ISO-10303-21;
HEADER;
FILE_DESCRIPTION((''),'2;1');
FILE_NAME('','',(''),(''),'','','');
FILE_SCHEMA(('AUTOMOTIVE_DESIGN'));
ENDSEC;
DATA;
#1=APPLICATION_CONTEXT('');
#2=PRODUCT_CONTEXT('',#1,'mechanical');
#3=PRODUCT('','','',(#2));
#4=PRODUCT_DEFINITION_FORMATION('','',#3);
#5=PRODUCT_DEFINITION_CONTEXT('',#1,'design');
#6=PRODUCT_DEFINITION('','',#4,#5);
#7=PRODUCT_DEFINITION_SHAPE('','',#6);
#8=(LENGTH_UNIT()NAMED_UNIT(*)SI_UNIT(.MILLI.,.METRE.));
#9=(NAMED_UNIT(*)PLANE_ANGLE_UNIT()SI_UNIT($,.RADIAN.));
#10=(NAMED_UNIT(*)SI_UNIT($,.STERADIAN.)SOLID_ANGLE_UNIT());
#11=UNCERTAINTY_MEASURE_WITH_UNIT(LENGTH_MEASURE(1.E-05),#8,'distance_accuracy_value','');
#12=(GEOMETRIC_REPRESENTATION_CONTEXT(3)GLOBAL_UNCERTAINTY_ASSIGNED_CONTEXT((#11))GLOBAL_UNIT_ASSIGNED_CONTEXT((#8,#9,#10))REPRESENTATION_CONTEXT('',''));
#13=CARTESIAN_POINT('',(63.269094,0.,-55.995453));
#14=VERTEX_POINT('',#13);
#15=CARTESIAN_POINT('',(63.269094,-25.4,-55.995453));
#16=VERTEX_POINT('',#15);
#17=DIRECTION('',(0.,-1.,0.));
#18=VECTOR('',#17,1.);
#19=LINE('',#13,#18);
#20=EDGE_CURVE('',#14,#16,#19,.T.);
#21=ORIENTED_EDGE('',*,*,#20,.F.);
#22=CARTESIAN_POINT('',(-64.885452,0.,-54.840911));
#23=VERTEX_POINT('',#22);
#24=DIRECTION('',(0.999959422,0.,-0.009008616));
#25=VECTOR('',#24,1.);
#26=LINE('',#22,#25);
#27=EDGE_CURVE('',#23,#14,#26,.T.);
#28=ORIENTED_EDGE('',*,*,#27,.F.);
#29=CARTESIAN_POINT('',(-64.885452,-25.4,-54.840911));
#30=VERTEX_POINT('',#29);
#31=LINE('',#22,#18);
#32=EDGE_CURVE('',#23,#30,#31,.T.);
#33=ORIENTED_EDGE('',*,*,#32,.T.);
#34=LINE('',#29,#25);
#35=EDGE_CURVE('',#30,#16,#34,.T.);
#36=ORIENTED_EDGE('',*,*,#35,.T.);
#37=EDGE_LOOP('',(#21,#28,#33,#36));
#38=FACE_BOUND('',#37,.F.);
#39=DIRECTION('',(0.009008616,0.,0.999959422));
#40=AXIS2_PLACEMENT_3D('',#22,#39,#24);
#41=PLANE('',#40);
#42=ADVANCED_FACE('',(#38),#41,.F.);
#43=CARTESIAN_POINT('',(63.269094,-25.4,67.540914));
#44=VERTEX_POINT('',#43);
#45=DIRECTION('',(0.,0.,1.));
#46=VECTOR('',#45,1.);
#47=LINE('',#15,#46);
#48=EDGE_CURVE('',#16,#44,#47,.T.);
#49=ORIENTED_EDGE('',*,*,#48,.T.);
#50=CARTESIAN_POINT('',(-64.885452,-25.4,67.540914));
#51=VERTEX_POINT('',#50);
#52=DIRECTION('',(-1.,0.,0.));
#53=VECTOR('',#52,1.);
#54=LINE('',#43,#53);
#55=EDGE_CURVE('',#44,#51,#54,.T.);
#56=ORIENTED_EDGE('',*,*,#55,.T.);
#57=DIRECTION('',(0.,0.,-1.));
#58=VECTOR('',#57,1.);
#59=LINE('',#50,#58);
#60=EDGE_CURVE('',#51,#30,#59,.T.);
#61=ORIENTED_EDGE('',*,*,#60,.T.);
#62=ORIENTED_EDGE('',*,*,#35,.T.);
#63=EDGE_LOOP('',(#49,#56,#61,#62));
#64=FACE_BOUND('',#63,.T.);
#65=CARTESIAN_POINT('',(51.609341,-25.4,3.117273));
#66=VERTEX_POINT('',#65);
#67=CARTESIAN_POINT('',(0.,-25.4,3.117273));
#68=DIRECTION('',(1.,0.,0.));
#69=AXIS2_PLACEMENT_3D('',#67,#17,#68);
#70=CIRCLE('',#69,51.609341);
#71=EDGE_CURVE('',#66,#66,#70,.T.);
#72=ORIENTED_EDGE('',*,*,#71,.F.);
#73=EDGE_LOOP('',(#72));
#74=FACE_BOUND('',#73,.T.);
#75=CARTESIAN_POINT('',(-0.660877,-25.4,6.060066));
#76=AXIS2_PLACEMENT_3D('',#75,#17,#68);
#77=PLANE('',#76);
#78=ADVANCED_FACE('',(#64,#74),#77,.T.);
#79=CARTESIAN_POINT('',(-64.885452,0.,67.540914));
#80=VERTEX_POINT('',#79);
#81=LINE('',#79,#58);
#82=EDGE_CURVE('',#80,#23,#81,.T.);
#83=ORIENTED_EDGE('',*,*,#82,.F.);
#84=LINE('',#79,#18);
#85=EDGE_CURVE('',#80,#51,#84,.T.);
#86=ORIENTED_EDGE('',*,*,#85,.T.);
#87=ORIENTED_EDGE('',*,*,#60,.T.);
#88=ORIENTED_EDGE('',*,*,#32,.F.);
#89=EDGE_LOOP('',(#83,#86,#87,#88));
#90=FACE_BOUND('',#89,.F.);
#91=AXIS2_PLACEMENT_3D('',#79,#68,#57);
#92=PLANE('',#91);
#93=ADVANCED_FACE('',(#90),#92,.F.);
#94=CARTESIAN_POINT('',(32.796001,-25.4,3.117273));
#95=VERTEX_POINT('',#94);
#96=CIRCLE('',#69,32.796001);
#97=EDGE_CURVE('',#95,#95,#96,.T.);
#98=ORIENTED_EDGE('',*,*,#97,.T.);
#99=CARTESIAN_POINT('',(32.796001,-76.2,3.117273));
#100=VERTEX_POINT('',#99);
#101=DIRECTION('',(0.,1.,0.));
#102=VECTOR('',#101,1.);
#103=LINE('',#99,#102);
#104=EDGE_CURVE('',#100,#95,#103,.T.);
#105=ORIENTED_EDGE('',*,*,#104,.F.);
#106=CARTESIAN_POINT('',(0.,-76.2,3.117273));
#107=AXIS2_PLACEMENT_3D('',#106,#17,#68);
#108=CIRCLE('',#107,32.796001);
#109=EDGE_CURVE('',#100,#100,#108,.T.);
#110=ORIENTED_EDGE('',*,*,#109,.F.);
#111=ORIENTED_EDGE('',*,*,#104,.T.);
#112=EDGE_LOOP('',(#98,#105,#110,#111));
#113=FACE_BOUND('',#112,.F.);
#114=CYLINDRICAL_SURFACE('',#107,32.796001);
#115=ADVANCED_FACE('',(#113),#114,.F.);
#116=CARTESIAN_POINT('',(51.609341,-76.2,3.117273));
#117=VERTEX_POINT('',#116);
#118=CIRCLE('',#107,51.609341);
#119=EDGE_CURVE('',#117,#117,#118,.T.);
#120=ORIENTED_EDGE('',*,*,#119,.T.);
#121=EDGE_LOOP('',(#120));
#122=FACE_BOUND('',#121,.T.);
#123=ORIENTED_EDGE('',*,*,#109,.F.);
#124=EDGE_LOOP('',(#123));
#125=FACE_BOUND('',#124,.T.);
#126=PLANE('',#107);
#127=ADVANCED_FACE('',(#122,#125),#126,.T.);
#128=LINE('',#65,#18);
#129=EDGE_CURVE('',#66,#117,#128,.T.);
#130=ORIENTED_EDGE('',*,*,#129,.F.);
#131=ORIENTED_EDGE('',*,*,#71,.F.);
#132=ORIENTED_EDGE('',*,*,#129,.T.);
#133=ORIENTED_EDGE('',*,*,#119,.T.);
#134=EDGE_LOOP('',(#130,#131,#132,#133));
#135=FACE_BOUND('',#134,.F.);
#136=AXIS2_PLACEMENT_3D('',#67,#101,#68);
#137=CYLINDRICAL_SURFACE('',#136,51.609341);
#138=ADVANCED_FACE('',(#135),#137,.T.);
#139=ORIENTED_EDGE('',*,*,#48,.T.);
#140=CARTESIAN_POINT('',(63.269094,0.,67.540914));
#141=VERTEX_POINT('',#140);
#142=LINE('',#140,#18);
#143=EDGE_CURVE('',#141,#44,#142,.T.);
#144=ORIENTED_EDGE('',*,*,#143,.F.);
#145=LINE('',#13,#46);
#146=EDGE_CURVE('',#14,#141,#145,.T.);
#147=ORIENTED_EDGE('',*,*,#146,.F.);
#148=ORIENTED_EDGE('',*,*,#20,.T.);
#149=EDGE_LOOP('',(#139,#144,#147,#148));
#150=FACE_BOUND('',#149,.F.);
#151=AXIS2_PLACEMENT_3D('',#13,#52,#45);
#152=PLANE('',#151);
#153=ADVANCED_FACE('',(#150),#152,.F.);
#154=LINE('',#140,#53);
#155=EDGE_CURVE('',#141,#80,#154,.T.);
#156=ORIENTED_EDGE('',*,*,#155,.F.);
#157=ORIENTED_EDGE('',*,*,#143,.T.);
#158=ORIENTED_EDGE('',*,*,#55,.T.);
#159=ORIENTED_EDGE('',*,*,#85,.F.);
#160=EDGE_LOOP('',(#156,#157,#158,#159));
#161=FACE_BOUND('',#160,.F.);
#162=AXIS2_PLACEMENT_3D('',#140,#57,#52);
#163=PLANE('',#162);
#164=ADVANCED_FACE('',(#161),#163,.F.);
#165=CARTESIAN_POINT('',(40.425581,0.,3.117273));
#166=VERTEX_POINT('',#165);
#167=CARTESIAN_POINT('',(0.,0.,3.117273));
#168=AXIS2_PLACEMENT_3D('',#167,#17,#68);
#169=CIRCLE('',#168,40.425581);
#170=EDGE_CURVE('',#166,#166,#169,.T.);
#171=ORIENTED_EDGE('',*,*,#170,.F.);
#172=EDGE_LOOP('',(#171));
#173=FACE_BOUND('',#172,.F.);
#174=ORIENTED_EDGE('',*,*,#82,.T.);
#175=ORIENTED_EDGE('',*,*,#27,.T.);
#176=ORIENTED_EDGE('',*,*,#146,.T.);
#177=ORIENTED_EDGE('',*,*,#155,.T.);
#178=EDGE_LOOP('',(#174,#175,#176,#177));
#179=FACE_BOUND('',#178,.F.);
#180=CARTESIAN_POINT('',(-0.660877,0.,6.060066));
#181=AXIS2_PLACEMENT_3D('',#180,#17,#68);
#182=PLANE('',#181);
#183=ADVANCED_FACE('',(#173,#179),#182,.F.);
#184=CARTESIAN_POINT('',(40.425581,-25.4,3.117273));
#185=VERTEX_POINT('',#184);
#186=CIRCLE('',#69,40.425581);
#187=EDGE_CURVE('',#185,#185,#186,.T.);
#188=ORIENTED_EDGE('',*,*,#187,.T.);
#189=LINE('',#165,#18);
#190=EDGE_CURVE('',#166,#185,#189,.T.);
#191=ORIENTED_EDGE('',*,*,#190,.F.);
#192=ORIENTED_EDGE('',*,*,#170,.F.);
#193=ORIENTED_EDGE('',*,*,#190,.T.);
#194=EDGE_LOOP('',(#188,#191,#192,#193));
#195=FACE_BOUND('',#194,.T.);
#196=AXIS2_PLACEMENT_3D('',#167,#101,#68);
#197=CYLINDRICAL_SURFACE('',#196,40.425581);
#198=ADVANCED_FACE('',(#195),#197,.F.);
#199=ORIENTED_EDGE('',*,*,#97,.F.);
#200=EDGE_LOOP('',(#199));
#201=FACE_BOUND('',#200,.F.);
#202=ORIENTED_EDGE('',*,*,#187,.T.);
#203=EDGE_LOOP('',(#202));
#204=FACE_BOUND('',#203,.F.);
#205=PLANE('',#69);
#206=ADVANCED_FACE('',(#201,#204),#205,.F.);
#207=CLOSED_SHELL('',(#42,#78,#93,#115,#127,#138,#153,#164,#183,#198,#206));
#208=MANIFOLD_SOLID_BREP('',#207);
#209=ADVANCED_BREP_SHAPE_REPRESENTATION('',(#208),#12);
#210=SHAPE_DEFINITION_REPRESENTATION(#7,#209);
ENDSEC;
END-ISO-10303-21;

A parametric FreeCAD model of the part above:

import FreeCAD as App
import Part
import Sketcher
from FreeCAD import Vector
Q = App.Units.Quantity

doc = App.newDocument("Part")
params = doc.addObject("Spreadsheet::Sheet", "Params")
for row, (alias, value) in enumerate([
    ("pad1_length", "1 in"),
    ("pad2_length", "2 in"),
    ("pocket1_length", "3 in"),
], start=1):
    params.set(f"A{row}", alias)
    params.set(f"B{row}", "=" + value)
    params.setAlias(f"B{row}", alias)

body = doc.addObject("PartDesign::Body", "Body")

# Sketch on XZ plane
sketch1 = body.newObject("Sketcher::SketchObject", "Sketch")
sketch1.AttachmentSupport = (doc.getObject("XZ_Plane"), [""])
sketch1.MapMode = "FlatFace"
sketch1.addGeometry(Part.LineSegment(Vector(63.269094, -55.995453, 0), Vector(63.269094, 67.540914, 0)), False)
sketch1.addGeometry(Part.LineSegment(Vector(63.269094, 67.540914, 0), Vector(-64.885452, 67.540914, 0)), False)
sketch1.addGeometry(Part.LineSegment(Vector(-64.885452, 67.540914, 0), Vector(-64.885452, -54.840911, 0)), False)
sketch1.addGeometry(Part.LineSegment(Vector(-64.885452, -54.840911, 0), Vector(63.269094, -55.995453, 0)), False)
sketch1.addGeometry(Part.Circle(Vector(0, 3.117273, 0), Vector(0, 0, 1), 40.425581), False)
sketch1.addConstraint(Sketcher.Constraint("Coincident", 0, 2, 1, 1))
sketch1.addConstraint(Sketcher.Constraint("Coincident", 1, 2, 2, 1))
sketch1.addConstraint(Sketcher.Constraint("Coincident", 2, 2, 3, 1))
sketch1.addConstraint(Sketcher.Constraint("Coincident", 3, 2, 0, 1))
sketch1.addConstraint(Sketcher.Constraint("Vertical", 0))
sketch1.addConstraint(Sketcher.Constraint("Horizontal", 1))
sketch1.addConstraint(Sketcher.Constraint("Vertical", 2))
sketch1.addConstraint(Sketcher.Constraint("PointOnObject", 4, 3, -2))
sketch1.addConstraint(Sketcher.Constraint("Diameter", 4, Q("80.851162 mm")))
sketch1.addConstraint(Sketcher.Constraint("DistanceX", 1, 2, 1, 1, Q("128.154546 mm")))
sketch1.addConstraint(Sketcher.Constraint("DistanceY", 0, 1, 0, 2, Q("123.536367 mm")))
sketch1.addConstraint(Sketcher.Constraint("DistanceY", 2, 2, 2, 1, Q("122.381825 mm")))
sketch1.addConstraint(Sketcher.Constraint("DistanceX", 1, 2, -1, 1, Q("64.885452 mm")))
sketch1.addConstraint(Sketcher.Constraint("DistanceY", 2, 2, -1, 1, Q("54.840911 mm")))
sketch1.addConstraint(Sketcher.Constraint("DistanceY", 4, 3, 0, 2, Q("64.423641 mm")))
pad1 = body.newObject("PartDesign::Pad", "Pad")
pad1.Profile = sketch1
pad1.setExpression("Length", "Params.pad1_length")

# Sketch on XZ plane
sketch2 = body.newObject("Sketcher::SketchObject", "Sketch001")
sketch2.AttachmentSupport = (doc.getObject("XZ_Plane"), [""])
sketch2.MapMode = "FlatFace"
sketch2.AttachmentOffset = App.Placement(Vector(0, 0, 1 * 25.4), App.Rotation())
sketch2.addGeometry(Part.Circle(Vector(0, 3.117273, 0), Vector(0, 0, 1), 51.609341), False)
sketch2.addConstraint(Sketcher.Constraint("PointOnObject", 0, 3, -2))
sketch2.addConstraint(Sketcher.Constraint("Diameter", 0, Q("103.218682 mm")))
sketch2.addConstraint(Sketcher.Constraint("DistanceY", -1, 1, 0, 3, Q("3.117273 mm")))
pad2 = body.newObject("PartDesign::Pad", "Pad001")
pad2.Profile = sketch2
pad2.setExpression("Length", "Params.pad2_length")

# Sketch on XZ plane
sketch3 = body.newObject("Sketcher::SketchObject", "Sketch002")
sketch3.AttachmentSupport = (doc.getObject("XZ_Plane"), [""])
sketch3.MapMode = "FlatFace"
sketch3.AttachmentOffset = App.Placement(Vector(0, 0, 3 * 25.4), App.Rotation())
sketch3.addGeometry(Part.Circle(Vector(0, 3.117273, 0), Vector(0, 0, 1), 32.796001), False)
sketch3.addConstraint(Sketcher.Constraint("PointOnObject", 0, 3, -2))
sketch3.addConstraint(Sketcher.Constraint("Diameter", 0, Q("65.592002 mm")))
sketch3.addConstraint(Sketcher.Constraint("DistanceY", -1, 1, 0, 3, Q("3.117273 mm")))
pocket1 = body.newObject("PartDesign::Pocket", "Pocket")
pocket1.Profile = sketch3
pocket1.setExpression("Length", "Params.pocket1_length")

doc.recompute()
